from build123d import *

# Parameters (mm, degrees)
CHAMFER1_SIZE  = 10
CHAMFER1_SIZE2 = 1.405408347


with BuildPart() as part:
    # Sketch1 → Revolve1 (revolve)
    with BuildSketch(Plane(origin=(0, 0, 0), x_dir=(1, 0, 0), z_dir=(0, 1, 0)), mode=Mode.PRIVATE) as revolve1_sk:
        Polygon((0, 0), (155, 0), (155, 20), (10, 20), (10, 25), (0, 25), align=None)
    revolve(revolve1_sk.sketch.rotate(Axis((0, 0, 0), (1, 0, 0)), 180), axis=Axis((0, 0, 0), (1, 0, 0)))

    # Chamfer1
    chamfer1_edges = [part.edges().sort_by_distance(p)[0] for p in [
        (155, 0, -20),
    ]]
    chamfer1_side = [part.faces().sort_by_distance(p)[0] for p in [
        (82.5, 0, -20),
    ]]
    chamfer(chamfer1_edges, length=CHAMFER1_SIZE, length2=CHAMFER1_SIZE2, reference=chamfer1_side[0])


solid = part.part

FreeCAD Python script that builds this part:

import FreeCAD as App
import Part
import Sketcher

V = App.Vector


def edges_at(feature, points):
    """Names of the edges that pass closest to the given points."""
    edges = feature.Shape.Edges
    near = lambda p: min(range(len(edges)), key=lambda i: edges[i].distToShape(Part.Vertex(*p))[0])
    return sorted({f"Edge{near(p) + 1}" for p in points})


def add_polygon(sketch, points):
    """Adds a closed chain of lines whose ends are joined by coincident constraints."""
    first, n = sketch.GeometryCount, len(points)
    for a, b in zip(points, points[1:] + points[:1]):
        sketch.addGeometry(Part.LineSegment(App.Vector(*a, 0), App.Vector(*b, 0)), False)
    for i in range(n):
        sketch.addConstraint(Sketcher.Constraint("Coincident", first + i, 2, first + (i + 1) % n, 1))

doc = App.newDocument("Part")
body = doc.addObject("PartDesign::Body", "Body")

# Sketch on XZ plane
sketch1 = body.newObject("Sketcher::SketchObject", "Sketch")
sketch1.AttachmentSupport = (doc.getObject("XZ_Plane"), [""])
sketch1.MapMode = "FlatFace"
add_polygon(sketch1, [(0, 0), (155, 0), (155, -20), (10, -20), (10, -25), (0, -25)])  # lines 0-5
sketch1.addConstraint([
    Sketcher.Constraint("Horizontal", 0),
    Sketcher.Constraint("Vertical", 1),
    Sketcher.Constraint("Horizontal", 2),
    Sketcher.Constraint("Vertical", 3),
    Sketcher.Constraint("Horizontal", 4),
    Sketcher.Constraint("Vertical", 5),
    Sketcher.Constraint("Coincident", 5, 2, -1, 1),
    Sketcher.Constraint("DistanceX", 0, 1, 0, 2, 155.0),
    Sketcher.Constraint("DistanceX", 2, 2, 2, 1, 145.0),
    Sketcher.Constraint("DistanceY", 1, 2, 1, 1, 20.0),
    Sketcher.Constraint("DistanceY", 3, 2, 3, 1, 5.0),
])
revolution = body.newObject("PartDesign::Revolution", "Revolution")
revolution.Profile = sketch1
revolution.ReferenceAxis = (sketch1, ["H_Axis"])
revolution.Angle = 360
doc.recompute()

chamfer = body.newObject("PartDesign::Chamfer", "Chamfer")
chamfer.Base = (revolution, edges_at(revolution, [(155, 0, -20)]))
chamfer.ChamferType = "Two distances"
chamfer.Size = 10
chamfer.Size2 = 1.405408
chamfer.FlipDirection = True

doc.recompute()
